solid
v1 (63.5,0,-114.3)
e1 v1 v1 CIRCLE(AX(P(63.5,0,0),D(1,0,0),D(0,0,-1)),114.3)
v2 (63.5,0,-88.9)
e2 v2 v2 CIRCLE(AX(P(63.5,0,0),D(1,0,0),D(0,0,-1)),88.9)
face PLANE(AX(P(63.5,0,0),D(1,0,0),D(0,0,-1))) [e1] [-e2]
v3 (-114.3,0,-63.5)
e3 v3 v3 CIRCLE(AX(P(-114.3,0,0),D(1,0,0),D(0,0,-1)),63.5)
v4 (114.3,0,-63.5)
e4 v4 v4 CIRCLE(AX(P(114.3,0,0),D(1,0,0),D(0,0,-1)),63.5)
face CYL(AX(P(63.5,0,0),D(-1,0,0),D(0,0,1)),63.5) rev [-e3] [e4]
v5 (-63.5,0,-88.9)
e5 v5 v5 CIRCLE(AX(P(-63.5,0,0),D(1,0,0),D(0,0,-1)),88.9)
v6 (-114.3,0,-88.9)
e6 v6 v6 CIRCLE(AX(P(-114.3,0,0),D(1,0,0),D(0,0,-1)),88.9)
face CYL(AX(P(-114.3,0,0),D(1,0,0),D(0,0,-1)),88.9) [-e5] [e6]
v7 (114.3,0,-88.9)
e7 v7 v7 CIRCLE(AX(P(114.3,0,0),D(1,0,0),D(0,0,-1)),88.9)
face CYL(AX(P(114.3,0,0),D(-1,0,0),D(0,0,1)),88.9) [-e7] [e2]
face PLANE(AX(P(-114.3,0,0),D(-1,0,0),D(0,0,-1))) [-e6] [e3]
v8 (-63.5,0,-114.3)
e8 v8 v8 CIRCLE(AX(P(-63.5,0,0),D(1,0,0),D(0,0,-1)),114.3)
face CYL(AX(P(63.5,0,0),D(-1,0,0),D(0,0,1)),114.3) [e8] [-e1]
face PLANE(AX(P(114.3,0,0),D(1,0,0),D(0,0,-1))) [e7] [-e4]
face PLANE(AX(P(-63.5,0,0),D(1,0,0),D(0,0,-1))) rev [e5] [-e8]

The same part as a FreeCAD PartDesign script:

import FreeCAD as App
import Part
import Sketcher
from FreeCAD import Vector
Q = App.Units.Quantity

doc = App.newDocument("Part")
body = doc.addObject("PartDesign::Body", "Body")

sketch1 = body.newObject("Sketcher::SketchObject", "Sketch")
sketch1.AttachmentSupport = (doc.getObject("YZ_Plane"), [""])
sketch1.MapMode = "FlatFace"
sketch1.addGeometry(Part.Circle(Vector(0, 0, 0), Vector(0, 0, 1), 114), False)
sketch1.addGeometry(Part.Circle(Vector(0, 0, 0), Vector(0, 0, 1), 64), False)
sketch1.addConstraint(Sketcher.Constraint("Coincident", 0, 3, -1, 1))
sketch1.addConstraint(Sketcher.Constraint("Coincident", 1, 3, -1, 1))
sketch1.addConstraint(Sketcher.Constraint("Diameter", 0, Q("9 in")))
sketch1.addConstraint(Sketcher.Constraint("Diameter", 1, Q("5 in")))
pad1 = body.newObject("PartDesign::Pad", "Pad")
pad1.Profile = sketch1
pad1.Length = Q("5 in")
pad1.Midplane = True

sketch2 = body.newObject("Sketcher::SketchObject", "Sketch001")
sketch2.AttachmentSupport = (doc.getObject("YZ_Plane"), [""])
sketch2.MapMode = "FlatFace"
sketch2.AttachmentOffset = App.Placement(Vector(0, 0, 2.5 * 25.4), App.Rotation())
sketch2.addGeometry(Part.Circle(Vector(0, 0, 0), Vector(0, 0, 1), 89), False)
sketch2.addGeometry(Part.Circle(Vector(0, 0, 0), Vector(0, 0, 1), 64), False)
sketch2.addConstraint(Sketcher.Constraint("Coincident", 0, 3, -1, 1))
sketch2.addConstraint(Sketcher.Constraint("Coincident", 1, 3, -1, 1))
sketch2.addConstraint(Sketcher.Constraint("Diameter", 0, Q("7 in")))
sketch2.addConstraint(Sketcher.Constraint("Diameter", 1, Q("5 in")))
pad2 = body.newObject("PartDesign::Pad", "Pad001")
pad2.Profile = sketch2
pad2.Length = Q("2 in")
doc.recompute()

mirrored = body.newObject("PartDesign::Mirrored", "Mirrored")
mirrored.Originals = [pad2]
mirrored.MirrorPlane = (doc.getObject("YZ_Plane"), [""])
body.Tip = mirrored

doc.recompute()
